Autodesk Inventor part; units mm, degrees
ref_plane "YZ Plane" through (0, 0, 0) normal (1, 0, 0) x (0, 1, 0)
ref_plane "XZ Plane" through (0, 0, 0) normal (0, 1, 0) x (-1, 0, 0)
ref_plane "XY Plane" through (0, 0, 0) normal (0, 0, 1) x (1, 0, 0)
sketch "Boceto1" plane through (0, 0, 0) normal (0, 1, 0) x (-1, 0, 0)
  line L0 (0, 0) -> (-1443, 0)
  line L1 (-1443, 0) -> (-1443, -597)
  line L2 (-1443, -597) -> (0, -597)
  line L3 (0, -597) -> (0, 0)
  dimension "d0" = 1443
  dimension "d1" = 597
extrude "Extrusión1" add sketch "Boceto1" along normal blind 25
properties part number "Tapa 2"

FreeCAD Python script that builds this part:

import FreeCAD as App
import Part
import Sketcher
from FreeCAD import Vector


def add_polygon(sketch, points):
    """Adds a closed chain of lines whose ends are joined by coincident constraints."""
    first, n = sketch.GeometryCount, len(points)
    for a, b in zip(points, points[1:] + points[:1]):
        sketch.addGeometry(Part.LineSegment(App.Vector(*a, 0), App.Vector(*b, 0)), False)
    for i in range(n):
        sketch.addConstraint(Sketcher.Constraint("Coincident", first + i, 2, first + (i + 1) % n, 1))

doc = App.newDocument("Part")
params = doc.addObject("Spreadsheet::Sheet", "Params")
for row, (alias, value) in enumerate([
    ("sketch1_width", "1443 mm"),
    ("sketch1_height", "597 mm"),
    ("pad1_length", "25 mm"),
], start=1):
    params.set(f"A{row}", alias)
    params.set(f"B{row}", "=" + value)
    params.setAlias(f"B{row}", alias)

body = doc.addObject("PartDesign::Body", "Body")

# Sketch on XZ plane
sketch1 = doc.addObject("Sketcher::SketchObject", "Sketch")
body.addObject(sketch1)
sketch1.AttachmentSupport = (doc.XZ_Plane, [""])
sketch1.MapMode = "FlatFace"
add_polygon(sketch1, [(0, -597), (0, 0), (1443, 0), (1443, -597)])  # lines 0-3
sketch1.addConstraint(Sketcher.Constraint("Vertical", 0))
sketch1.addConstraint(Sketcher.Constraint("Horizontal", 1))
sketch1.addConstraint(Sketcher.Constraint("Vertical", 2))
sketch1.addConstraint(Sketcher.Constraint("Horizontal", 3))
sketch1.addConstraint(Sketcher.Constraint("Coincident", 0, 2, -1, 1))
sketch1.addConstraint(Sketcher.Constraint("DistanceX", 1, 1, 1, 2, 1443.0))
sketch1.addConstraint(Sketcher.Constraint("DistanceY", 0, 1, 0, 2, 597.0))
sketch1.setExpression("Constraints[9]", "Params.sketch1_width")
sketch1.setExpression("Constraints[10]", "Params.sketch1_height")
pad1 = doc.addObject("PartDesign::Pad", "Pad")
body.addObject(pad1)
pad1.Profile = sketch1
pad1.setExpression("Length", "Params.pad1_length")
pad1.Reversed = True

doc.recompute()
